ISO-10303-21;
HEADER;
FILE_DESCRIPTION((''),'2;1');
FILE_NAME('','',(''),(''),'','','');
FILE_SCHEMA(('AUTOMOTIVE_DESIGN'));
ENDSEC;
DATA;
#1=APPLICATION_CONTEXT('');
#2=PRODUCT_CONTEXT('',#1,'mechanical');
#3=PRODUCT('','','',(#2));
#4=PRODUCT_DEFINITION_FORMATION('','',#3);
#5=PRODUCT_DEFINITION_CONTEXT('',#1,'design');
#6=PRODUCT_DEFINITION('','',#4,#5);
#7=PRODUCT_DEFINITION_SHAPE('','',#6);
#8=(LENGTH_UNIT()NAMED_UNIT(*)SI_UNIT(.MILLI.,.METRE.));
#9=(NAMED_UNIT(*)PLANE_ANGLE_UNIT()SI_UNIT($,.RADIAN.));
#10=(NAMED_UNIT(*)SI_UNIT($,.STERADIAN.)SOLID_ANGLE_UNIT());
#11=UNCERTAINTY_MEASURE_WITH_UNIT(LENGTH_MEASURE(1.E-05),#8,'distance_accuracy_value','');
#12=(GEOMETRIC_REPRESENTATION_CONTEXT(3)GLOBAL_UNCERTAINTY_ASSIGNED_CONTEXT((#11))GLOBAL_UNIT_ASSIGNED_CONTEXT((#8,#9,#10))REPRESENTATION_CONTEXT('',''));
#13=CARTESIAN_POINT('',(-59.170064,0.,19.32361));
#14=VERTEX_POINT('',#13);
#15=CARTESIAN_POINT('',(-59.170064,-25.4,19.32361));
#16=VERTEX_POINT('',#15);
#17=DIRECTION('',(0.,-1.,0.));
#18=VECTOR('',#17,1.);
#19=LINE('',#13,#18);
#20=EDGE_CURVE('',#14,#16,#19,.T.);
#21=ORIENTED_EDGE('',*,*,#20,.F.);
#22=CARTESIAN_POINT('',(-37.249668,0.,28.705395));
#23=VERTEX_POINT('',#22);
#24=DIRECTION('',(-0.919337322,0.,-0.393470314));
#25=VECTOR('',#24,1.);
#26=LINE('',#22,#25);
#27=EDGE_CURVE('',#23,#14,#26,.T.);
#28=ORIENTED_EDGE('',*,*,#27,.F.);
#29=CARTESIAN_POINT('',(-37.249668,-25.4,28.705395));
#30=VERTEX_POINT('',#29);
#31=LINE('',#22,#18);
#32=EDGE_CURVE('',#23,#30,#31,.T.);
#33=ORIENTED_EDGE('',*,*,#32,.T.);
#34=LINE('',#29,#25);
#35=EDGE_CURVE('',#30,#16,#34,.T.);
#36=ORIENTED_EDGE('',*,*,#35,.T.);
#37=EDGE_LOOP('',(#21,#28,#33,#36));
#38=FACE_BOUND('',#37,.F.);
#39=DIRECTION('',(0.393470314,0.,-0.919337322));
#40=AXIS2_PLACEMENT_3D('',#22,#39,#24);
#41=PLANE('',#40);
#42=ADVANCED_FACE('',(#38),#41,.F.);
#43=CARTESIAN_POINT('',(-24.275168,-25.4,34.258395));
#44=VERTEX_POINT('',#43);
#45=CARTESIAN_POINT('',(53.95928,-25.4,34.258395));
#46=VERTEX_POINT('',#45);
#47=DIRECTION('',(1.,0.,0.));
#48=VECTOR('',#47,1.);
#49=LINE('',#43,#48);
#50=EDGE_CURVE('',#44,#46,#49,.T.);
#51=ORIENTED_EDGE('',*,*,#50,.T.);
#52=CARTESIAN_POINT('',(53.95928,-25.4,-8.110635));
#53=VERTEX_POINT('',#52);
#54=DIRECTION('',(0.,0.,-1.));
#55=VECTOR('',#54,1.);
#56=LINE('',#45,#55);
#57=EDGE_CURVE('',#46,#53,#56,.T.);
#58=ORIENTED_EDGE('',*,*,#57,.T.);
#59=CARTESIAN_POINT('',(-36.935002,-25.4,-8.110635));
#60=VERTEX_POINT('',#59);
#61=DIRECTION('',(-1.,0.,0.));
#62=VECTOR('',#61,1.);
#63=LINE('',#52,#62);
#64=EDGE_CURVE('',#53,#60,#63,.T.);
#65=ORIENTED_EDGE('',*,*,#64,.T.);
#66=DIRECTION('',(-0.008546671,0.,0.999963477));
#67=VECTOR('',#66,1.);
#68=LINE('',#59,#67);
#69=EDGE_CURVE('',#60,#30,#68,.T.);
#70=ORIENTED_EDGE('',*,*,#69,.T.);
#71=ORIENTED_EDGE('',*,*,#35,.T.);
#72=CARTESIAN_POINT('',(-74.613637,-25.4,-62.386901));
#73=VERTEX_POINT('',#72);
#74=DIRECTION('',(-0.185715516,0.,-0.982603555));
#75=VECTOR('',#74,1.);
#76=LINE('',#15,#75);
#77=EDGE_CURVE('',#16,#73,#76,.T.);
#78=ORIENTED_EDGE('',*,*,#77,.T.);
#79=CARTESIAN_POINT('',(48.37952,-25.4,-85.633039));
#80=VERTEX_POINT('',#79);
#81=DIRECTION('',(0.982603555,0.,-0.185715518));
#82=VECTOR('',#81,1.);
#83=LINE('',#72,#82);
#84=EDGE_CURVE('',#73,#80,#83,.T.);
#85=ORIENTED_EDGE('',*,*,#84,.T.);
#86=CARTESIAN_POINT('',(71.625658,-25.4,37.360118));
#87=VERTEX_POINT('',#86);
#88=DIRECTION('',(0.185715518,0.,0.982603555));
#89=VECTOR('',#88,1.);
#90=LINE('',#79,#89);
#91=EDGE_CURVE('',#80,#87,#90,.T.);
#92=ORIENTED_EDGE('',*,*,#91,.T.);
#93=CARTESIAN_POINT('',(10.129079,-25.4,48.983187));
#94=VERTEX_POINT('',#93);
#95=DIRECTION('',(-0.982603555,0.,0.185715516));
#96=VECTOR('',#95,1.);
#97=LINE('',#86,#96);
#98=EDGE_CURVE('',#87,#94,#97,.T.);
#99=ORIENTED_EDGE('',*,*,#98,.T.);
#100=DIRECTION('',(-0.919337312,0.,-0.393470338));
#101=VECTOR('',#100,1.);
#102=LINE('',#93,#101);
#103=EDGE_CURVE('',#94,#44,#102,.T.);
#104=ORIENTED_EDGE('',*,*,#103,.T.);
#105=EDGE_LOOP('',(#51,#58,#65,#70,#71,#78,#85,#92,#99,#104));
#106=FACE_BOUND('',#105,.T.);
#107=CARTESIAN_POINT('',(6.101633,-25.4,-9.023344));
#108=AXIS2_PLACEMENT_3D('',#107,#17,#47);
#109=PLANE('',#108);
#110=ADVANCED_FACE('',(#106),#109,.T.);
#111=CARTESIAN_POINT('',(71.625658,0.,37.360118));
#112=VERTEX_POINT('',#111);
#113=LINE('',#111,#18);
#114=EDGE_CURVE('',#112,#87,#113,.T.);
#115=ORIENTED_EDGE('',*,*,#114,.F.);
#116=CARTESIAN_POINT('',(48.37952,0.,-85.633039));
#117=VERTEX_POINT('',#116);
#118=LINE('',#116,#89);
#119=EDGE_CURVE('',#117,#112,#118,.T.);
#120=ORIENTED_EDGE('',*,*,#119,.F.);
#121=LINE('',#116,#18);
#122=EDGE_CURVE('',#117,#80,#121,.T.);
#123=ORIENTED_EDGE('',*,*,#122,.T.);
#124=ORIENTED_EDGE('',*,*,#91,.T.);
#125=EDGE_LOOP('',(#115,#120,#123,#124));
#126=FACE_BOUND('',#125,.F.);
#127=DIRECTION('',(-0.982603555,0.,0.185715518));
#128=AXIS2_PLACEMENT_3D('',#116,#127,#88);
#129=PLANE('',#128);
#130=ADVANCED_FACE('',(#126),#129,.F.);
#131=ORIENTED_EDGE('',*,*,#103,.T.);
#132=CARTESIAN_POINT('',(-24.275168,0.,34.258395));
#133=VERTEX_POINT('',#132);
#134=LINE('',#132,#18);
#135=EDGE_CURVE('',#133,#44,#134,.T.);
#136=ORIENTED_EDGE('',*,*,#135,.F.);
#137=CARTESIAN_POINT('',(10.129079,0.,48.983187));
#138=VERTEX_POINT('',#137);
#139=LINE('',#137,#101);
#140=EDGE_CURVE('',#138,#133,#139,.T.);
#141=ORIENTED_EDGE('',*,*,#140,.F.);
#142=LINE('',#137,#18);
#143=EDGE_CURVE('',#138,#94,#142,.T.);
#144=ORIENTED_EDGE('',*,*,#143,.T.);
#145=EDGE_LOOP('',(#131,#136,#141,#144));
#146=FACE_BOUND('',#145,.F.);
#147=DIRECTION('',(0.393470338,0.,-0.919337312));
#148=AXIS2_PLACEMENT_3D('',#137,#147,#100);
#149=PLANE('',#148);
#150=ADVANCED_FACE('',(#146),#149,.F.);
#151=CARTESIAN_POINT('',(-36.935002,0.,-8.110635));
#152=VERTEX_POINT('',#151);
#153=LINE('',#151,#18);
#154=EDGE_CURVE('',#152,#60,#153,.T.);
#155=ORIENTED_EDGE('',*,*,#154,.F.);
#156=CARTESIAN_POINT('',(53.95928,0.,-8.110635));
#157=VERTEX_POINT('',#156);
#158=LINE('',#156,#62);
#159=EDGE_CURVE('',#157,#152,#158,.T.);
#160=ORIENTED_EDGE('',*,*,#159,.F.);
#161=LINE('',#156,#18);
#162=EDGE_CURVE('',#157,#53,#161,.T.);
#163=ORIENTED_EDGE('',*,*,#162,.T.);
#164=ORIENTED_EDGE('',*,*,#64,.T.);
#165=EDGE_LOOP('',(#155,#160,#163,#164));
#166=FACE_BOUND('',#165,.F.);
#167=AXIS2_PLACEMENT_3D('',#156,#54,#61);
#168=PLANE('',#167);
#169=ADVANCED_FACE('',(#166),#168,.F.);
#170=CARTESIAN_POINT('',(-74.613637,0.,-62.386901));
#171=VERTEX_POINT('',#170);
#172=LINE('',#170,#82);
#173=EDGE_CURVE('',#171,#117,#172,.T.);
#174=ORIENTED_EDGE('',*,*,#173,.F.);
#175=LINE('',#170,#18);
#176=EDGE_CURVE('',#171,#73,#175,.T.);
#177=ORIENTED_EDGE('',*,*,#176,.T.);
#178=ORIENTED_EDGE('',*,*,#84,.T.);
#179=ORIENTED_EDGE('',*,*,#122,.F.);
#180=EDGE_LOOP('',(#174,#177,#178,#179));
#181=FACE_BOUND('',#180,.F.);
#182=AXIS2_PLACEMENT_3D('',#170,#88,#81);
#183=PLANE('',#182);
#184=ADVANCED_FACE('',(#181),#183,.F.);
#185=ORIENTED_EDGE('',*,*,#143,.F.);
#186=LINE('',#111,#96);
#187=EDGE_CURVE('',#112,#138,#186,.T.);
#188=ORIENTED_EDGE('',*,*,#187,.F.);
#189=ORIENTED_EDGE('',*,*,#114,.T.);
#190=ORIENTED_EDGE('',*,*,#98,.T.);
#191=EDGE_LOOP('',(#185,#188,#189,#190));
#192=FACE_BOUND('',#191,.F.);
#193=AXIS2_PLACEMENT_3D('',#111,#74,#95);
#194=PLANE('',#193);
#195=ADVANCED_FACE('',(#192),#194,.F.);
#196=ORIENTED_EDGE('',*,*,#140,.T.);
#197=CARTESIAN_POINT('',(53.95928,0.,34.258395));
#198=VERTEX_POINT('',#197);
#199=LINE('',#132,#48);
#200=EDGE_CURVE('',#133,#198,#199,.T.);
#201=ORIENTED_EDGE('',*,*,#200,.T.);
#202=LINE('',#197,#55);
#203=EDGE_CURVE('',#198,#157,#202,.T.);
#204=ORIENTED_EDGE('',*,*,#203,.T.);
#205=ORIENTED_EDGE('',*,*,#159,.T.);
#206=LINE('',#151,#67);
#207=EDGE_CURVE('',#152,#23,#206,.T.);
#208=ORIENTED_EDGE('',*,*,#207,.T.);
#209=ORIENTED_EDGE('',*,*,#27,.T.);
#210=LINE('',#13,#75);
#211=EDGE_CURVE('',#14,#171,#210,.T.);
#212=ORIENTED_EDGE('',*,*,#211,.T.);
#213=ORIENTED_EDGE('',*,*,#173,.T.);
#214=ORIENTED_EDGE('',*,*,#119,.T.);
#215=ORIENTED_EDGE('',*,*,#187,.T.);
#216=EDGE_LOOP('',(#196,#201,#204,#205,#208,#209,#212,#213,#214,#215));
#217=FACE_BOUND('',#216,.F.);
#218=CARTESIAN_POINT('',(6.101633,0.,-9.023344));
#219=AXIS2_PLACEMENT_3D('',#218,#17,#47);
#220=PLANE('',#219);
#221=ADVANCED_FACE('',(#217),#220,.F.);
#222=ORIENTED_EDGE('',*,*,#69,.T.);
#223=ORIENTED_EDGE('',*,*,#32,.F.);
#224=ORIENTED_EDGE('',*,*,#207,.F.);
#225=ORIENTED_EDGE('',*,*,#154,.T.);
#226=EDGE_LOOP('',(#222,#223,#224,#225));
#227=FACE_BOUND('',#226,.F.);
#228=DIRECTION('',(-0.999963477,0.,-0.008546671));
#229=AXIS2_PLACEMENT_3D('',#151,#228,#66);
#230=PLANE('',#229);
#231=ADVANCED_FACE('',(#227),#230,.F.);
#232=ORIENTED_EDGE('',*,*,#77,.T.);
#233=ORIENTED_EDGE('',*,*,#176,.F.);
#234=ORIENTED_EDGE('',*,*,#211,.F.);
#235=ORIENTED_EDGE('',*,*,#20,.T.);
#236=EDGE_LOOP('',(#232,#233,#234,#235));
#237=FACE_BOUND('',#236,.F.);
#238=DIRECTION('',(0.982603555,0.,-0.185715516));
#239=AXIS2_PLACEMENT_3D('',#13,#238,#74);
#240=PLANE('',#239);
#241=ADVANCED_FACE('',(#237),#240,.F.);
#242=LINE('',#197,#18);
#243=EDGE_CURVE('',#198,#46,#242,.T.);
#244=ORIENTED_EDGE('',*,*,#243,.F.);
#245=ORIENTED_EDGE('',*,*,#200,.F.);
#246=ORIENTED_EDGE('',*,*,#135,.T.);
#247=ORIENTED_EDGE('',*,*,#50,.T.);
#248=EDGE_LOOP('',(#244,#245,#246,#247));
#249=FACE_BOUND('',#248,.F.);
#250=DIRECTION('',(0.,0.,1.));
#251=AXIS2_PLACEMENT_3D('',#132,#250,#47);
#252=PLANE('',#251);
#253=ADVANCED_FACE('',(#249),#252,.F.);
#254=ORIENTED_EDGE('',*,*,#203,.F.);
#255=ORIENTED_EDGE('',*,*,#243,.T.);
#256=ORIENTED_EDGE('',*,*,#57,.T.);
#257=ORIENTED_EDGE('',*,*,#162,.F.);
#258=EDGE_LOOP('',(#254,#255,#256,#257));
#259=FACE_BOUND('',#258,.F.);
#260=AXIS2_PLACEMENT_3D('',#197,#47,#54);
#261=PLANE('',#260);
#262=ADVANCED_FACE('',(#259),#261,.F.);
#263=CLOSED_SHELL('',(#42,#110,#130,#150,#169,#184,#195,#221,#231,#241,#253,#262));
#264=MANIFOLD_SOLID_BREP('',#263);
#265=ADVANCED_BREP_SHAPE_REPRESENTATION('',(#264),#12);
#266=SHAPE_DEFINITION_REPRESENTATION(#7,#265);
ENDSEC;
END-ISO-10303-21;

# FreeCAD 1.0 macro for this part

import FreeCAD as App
import Part
import Sketcher

V = App.Vector
Q = App.Units.Quantity

doc = App.newDocument("Part")
params = doc.addObject("Spreadsheet::Sheet", "Params")
for row, (alias, value) in enumerate([
    ("pad1_length", "1 in"),
], start=1):
    params.set(f"A{row}", alias)
    params.set(f"B{row}", "=" + value)
    params.setAlias(f"B{row}", alias)

body = doc.addObject("PartDesign::Body", "Body")

sketch1 = body.newObject("Sketcher::SketchObject", "Sketch")
sketch1.AttachmentSupport = (doc.getObject("XZ_Plane"), [""])
sketch1.MapMode = "FlatFace"
sketch1.addGeometry(Part.LineSegment(V(72, 37, 0), V(10, 49, 0)), False)
sketch1.addGeometry(Part.LineSegment(V(10, 49, 0), V(-24, 34, 0)), False)
sketch1.addGeometry(Part.LineSegment(V(-24, 34, 0), V(54, 34, 0)), False)
sketch1.addGeometry(Part.LineSegment(V(54, 34, 0), V(54, -8, 0)), False)
sketch1.addGeometry(Part.LineSegment(V(54, -8, 0), V(-37, -8, 0)), False)
sketch1.addGeometry(Part.LineSegment(V(-37, -8, 0), V(-37, 29, 0)), False)
sketch1.addGeometry(Part.LineSegment(V(-37, 29, 0), V(-59, 19, 0)), False)
sketch1.addGeometry(Part.LineSegment(V(-59, 19, 0), V(-75, -62, 0)), False)
sketch1.addGeometry(Part.LineSegment(V(-75, -62, 0), V(48, -86, 0)), False)
sketch1.addGeometry(Part.LineSegment(V(48, -86, 0), V(72, 37, 0)), False)
sketch1.addConstraint(Sketcher.Constraint("Coincident", 0, 2, 1, 1))
sketch1.addConstraint(Sketcher.Constraint("Coincident", 1, 2, 2, 1))
sketch1.addConstraint(Sketcher.Constraint("Coincident", 2, 2, 3, 1))
sketch1.addConstraint(Sketcher.Constraint("Coincident", 3, 2, 4, 1))
sketch1.addConstraint(Sketcher.Constraint("Coincident", 4, 2, 5, 1))
sketch1.addConstraint(Sketcher.Constraint("Coincident", 5, 2, 6, 1))
sketch1.addConstraint(Sketcher.Constraint("Coincident", 6, 2, 7, 1))
sketch1.addConstraint(Sketcher.Constraint("Coincident", 7, 2, 8, 1))
sketch1.addConstraint(Sketcher.Constraint("Coincident", 8, 2, 9, 1))
sketch1.addConstraint(Sketcher.Constraint("Coincident", 9, 2, 0, 1))
sketch1.addConstraint(Sketcher.Constraint("Horizontal", 2))
sketch1.addConstraint(Sketcher.Constraint("Vertical", 3))
sketch1.addConstraint(Sketcher.Constraint("Horizontal", 4))
sketch1.addConstraint(Sketcher.Constraint("Parallel", 1, 6))
sketch1.addConstraint(Sketcher.Constraint("Perpendicular", 0, 7))
sketch1.addConstraint(Sketcher.Constraint("Perpendicular", 7, 8))
sketch1.addConstraint(Sketcher.Constraint("Perpendicular", 8, 9))
sketch1.addConstraint(Sketcher.Constraint("Equal", 8, 9))
sketch1.addConstraint(Sketcher.Constraint("DistanceY", 6, 2, 0, 2, Q("1.1676999 in")))
sketch1.addConstraint(Sketcher.Constraint("DistanceX", 2, 1, 2, 2, 78.234448))
sketch1.addConstraint(Sketcher.Constraint("DistanceY", 3, 2, 3, 1, 42.36903))
sketch1.addConstraint(Sketcher.Constraint("DistanceX", 4, 2, -1, 1, 36.935002))
sketch1.addConstraint(Sketcher.Constraint("DistanceY", 7, 2, -1, 1, 62.386901))
sketch1.addConstraint(Sketcher.Constraint("DistanceX", 0, 2, 2, 2, 43.830201))
sketch1.addConstraint(Sketcher.Constraint("DistanceX", 5, 2, 1, 2, 12.9745))
sketch1.addConstraint(Sketcher.Constraint("DistanceY", 5, 2, 1, 2, 5.553))
sketch1.addConstraint(Sketcher.Constraint("Distance", 0, 62.585341))
sketch1.addConstraint(Sketcher.Constraint("Distance", 7, 83.15715))
sketch1.addConstraint(Sketcher.Constraint("Distance", 8, 125.170682))
sketch1.addConstraint(Sketcher.Constraint("DistanceX", 4, 2, 4, 1, 90.894282))
pad1 = body.newObject("PartDesign::Pad", "Pad")
pad1.Profile = sketch1
pad1.setExpression("Length", "Params.pad1_length")

doc.recompute()
